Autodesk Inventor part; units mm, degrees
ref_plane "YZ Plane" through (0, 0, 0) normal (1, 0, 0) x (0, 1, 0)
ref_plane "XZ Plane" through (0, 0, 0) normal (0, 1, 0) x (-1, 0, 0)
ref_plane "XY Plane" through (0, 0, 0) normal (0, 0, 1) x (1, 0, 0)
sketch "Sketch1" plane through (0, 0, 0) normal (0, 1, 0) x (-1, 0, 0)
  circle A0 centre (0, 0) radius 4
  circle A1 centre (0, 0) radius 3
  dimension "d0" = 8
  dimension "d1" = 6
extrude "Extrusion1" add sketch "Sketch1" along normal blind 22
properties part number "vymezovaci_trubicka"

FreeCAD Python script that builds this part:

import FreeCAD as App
import Part
import Sketcher
Q = App.Units.Quantity

doc = App.newDocument("Part")
body = doc.addObject("PartDesign::Body", "Body")

# Sketch on XZ plane
sketch1 = doc.addObject("Sketcher::SketchObject", "Sketch")
body.addObject(sketch1)
sketch1.AttachmentSupport = (doc.XZ_Plane, [""])
sketch1.MapMode = "FlatFace"
sketch1.addGeometry([
    Part.Circle(App.Vector(0, 0, 0), App.Vector(0, 0, 1), 4),
    Part.Circle(App.Vector(0, 0, 0), App.Vector(0, 0, 1), 3),
], False)
sketch1.addConstraint([
    Sketcher.Constraint("Coincident", 0, 3, -1, 1),
    Sketcher.Constraint("Coincident", 1, 3, -1, 1),
    Sketcher.Constraint("Diameter", 0, Q("8 mm")),
    Sketcher.Constraint("Diameter", 1, Q("6 mm")),
])
pad1 = doc.addObject("PartDesign::Pad", "Pad")
body.addObject(pad1)
pad1.Profile = sketch1
pad1.Length = 22
pad1.Reversed = True

doc.recompute()
